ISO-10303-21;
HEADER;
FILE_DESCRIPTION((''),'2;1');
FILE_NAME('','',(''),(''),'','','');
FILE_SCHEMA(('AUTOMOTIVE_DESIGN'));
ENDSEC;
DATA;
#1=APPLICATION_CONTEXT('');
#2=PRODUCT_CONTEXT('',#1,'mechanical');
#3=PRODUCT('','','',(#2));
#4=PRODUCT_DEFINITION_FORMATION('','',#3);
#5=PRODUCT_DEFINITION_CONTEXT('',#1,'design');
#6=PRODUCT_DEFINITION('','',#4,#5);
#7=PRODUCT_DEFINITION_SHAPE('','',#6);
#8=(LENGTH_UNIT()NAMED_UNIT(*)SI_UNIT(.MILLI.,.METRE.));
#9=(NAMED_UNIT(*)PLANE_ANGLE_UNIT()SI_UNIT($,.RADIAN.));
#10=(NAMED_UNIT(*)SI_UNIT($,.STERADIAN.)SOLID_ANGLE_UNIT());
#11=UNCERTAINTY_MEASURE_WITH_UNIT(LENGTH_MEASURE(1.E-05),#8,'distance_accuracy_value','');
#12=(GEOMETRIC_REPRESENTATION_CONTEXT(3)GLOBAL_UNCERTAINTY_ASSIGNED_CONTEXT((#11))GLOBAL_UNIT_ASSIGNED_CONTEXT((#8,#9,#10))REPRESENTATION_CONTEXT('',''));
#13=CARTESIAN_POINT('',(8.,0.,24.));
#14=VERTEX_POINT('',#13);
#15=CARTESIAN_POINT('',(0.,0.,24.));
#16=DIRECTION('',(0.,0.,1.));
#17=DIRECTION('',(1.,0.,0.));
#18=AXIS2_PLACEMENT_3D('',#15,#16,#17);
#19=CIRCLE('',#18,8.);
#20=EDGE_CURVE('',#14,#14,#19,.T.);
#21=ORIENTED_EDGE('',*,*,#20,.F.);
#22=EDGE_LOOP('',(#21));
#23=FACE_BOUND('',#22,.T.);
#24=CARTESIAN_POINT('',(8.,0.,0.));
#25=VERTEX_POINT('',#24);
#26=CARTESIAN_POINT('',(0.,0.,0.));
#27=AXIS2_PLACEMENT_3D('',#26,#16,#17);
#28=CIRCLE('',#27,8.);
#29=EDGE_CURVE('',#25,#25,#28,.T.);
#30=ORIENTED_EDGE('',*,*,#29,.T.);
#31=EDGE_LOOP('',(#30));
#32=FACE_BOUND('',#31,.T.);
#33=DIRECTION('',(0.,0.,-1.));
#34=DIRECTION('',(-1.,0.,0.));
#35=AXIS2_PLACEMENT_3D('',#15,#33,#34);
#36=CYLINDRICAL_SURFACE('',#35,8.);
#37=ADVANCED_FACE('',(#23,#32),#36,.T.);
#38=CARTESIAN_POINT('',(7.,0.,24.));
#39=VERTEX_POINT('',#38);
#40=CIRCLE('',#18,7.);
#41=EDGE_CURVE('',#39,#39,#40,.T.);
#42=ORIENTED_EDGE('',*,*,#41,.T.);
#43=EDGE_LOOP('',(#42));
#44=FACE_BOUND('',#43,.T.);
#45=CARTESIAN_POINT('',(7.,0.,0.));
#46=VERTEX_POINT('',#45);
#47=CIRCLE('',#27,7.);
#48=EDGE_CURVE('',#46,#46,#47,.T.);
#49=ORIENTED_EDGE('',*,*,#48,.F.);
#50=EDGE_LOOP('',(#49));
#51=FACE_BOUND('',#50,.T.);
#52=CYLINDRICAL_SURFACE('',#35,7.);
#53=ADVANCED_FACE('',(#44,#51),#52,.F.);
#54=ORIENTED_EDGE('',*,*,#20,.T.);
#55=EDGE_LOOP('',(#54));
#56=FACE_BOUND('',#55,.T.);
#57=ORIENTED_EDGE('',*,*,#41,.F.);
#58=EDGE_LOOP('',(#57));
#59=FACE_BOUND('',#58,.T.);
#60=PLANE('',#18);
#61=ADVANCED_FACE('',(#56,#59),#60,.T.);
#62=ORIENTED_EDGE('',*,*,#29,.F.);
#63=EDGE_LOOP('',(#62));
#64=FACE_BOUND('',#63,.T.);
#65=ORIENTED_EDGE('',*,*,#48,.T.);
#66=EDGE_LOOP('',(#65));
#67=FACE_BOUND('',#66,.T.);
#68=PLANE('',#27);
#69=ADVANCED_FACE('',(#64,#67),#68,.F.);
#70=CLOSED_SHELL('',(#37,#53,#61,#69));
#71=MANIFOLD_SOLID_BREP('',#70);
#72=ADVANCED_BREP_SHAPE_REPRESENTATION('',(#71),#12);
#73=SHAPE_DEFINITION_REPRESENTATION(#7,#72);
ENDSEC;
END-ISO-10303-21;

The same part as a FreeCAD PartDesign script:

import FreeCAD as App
import Part
import Sketcher

V = App.Vector
Q = App.Units.Quantity

doc = App.newDocument("Part")
body = doc.addObject("PartDesign::Body", "Body")

sketch1 = doc.addObject("Sketcher::SketchObject", "Sketch")
body.addObject(sketch1)
sketch1.AttachmentSupport = (doc.XY_Plane, [""])
sketch1.MapMode = "FlatFace"
sketch1.addGeometry([
    Part.Circle(V(0, 0, 0), V(0, 0, 1), 8),
    Part.Circle(V(0, 0, 0), V(0, 0, 1), 7),
], False)
sketch1.addConstraint([
    Sketcher.Constraint("Coincident", 0, 3, -1, 1),
    Sketcher.Constraint("Coincident", 1, 3, -1, 1),
    Sketcher.Constraint("Diameter", 0, Q("16 mm")),
    Sketcher.Constraint("Diameter", 1, Q("14 mm")),
])
pad1 = doc.addObject("PartDesign::Pad", "Pad")
body.addObject(pad1)
pad1.Profile = sketch1
pad1.Length = 24

doc.recompute()
